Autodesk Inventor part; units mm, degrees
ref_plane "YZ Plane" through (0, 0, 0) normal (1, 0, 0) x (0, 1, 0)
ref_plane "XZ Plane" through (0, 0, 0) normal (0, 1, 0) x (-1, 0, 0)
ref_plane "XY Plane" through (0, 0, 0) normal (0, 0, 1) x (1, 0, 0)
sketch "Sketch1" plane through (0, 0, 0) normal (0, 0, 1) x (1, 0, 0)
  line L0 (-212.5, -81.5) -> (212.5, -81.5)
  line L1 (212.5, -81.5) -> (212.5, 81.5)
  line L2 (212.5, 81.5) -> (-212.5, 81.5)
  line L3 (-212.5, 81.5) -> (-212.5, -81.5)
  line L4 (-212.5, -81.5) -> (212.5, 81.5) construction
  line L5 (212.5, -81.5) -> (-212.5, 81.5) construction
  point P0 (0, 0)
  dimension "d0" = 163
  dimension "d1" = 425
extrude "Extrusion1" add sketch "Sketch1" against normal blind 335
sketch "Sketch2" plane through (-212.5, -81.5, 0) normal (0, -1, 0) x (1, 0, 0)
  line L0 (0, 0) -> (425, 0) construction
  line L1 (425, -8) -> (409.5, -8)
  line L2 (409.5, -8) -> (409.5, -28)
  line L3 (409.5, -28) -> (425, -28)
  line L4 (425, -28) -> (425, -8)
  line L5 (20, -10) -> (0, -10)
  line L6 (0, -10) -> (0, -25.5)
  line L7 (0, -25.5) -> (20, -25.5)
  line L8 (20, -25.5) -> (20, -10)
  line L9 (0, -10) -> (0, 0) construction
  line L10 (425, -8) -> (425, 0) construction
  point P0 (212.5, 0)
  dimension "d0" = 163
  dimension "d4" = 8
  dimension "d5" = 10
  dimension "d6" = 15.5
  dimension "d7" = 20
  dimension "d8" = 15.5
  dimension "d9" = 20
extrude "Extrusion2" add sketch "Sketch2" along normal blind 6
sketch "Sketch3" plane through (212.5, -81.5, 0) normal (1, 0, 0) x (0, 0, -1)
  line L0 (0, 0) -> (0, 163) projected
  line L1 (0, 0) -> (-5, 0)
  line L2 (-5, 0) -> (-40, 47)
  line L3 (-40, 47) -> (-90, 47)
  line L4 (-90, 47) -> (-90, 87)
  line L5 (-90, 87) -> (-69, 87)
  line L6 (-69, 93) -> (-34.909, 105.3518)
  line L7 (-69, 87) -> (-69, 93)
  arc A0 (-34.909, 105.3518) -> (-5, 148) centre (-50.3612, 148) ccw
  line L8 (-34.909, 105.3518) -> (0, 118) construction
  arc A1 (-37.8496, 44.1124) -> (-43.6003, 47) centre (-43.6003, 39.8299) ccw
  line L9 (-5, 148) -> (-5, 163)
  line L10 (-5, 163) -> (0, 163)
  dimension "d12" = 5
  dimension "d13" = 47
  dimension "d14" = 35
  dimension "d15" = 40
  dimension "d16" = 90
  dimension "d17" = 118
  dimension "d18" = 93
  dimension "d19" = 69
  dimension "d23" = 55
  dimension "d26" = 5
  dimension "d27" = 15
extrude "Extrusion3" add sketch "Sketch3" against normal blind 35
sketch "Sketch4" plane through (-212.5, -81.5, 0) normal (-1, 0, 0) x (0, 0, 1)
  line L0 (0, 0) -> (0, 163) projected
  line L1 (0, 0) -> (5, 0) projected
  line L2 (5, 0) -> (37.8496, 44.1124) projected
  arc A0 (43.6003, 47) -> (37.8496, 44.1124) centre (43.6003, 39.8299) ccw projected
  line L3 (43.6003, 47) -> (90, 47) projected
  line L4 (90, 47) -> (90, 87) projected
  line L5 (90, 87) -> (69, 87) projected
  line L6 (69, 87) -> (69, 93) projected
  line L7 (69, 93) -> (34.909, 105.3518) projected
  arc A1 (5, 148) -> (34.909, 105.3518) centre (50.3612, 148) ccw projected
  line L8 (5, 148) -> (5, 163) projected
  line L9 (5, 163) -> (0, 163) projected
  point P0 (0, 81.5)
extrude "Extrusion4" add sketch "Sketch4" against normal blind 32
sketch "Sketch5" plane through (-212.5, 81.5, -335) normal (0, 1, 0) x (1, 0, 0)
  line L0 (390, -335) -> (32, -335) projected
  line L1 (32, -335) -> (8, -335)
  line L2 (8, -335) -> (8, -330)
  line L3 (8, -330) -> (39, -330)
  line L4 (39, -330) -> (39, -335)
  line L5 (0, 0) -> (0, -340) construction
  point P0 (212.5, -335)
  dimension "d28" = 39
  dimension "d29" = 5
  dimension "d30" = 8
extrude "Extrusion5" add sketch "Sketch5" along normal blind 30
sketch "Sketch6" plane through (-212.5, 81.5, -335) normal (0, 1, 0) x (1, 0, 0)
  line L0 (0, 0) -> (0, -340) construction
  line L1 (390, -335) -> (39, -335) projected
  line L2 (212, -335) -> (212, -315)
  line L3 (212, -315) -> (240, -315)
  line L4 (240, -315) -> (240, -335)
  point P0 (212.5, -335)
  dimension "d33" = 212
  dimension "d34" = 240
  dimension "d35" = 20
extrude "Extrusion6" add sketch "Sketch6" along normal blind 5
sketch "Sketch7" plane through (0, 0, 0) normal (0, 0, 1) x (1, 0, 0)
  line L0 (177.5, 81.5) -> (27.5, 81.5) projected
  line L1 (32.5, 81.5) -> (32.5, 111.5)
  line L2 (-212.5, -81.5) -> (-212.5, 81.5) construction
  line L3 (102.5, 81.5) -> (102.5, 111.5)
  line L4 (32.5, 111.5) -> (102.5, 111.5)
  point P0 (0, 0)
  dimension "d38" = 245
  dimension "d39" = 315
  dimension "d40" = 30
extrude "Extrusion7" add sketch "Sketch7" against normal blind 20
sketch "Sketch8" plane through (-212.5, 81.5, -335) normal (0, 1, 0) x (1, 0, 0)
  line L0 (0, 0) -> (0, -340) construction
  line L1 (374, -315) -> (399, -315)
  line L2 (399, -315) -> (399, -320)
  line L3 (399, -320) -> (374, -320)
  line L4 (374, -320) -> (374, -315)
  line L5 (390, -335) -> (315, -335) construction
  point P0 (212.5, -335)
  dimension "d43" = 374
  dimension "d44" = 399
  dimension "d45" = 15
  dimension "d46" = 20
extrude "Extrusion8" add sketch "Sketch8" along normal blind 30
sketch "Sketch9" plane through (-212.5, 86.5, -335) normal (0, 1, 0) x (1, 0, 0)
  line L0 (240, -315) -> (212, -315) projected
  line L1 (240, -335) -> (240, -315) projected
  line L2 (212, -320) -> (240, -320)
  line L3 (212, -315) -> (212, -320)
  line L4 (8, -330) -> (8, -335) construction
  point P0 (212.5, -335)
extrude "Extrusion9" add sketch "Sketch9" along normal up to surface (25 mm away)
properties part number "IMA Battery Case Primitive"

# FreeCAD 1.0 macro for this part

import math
import FreeCAD as App
import Part
import Sketcher
from FreeCAD import Vector

doc = App.newDocument("Part")
body = doc.addObject("PartDesign::Body", "Body")

# Sketch on XY plane
sketch1 = body.newObject("Sketcher::SketchObject", "Sketch")
sketch1.AttachmentSupport = (doc.getObject("XY_Plane"), [""])
sketch1.MapMode = "FlatFace"
sketch1.addGeometry([
    Part.LineSegment(Vector(-212, 82, 0), Vector(-212, -82, 0)),
    Part.LineSegment(Vector(-212, -82, 0), Vector(212, -82, 0)),
    Part.LineSegment(Vector(212, -82, 0), Vector(212, 82, 0)),
    Part.LineSegment(Vector(212, 82, 0), Vector(-212, 82, 0)),
], False)
sketch1.addConstraint([
    Sketcher.Constraint("Coincident", 0, 2, 1, 1),
    Sketcher.Constraint("Coincident", 1, 2, 2, 1),
    Sketcher.Constraint("Coincident", 2, 2, 3, 1),
    Sketcher.Constraint("Coincident", 3, 2, 0, 1),
    Sketcher.Constraint("Vertical", 0),
    Sketcher.Constraint("Horizontal", 1),
    Sketcher.Constraint("Vertical", 2),
    Sketcher.Constraint("Horizontal", 3),
    Sketcher.Constraint("Symmetric", 0, 2, 2, 2, -1, 1),
    Sketcher.Constraint("DistanceX", 1, 1, 1, 2, 425.0),
    Sketcher.Constraint("DistanceY", 0, 2, 0, 1, 163.0),
])
pad1 = body.newObject("PartDesign::Pad", "Pad")
pad1.Profile = sketch1
pad1.Length = 335
pad1.Reversed = True

# Sketch on XZ plane
sketch2 = body.newObject("Sketcher::SketchObject", "Sketch001")
sketch2.AttachmentSupport = (doc.getObject("XZ_Plane"), [""])
sketch2.MapMode = "FlatFace"
sketch2.AttachmentOffset = App.Placement(Vector(0, 0, 81.5), App.Rotation())
sketch2.addGeometry([
    Part.LineSegment(Vector(212, -28, 0), Vector(212, -8, 0)),  # 0
    Part.LineSegment(Vector(212, -8, 0), Vector(197, -8, 0)),  # 1
    Part.LineSegment(Vector(197, -8, 0), Vector(197, -28, 0)),  # 2
    Part.LineSegment(Vector(197, -28, 0), Vector(212, -28, 0)),  # 3
    Part.LineSegment(Vector(-192, -26, 0), Vector(-192, -10, 0)),  # 4
    Part.LineSegment(Vector(-192, -10, 0), Vector(-212, -10, 0)),  # 5
    Part.LineSegment(Vector(-212, -10, 0), Vector(-212, -26, 0)),  # 6
    Part.LineSegment(Vector(-212, -26, 0), Vector(-192, -26, 0)),  # 7
], False)
sketch2.addConstraint([
    Sketcher.Constraint("Coincident", 0, 2, 1, 1),
    Sketcher.Constraint("Coincident", 1, 2, 2, 1),
    Sketcher.Constraint("Coincident", 2, 2, 3, 1),
    Sketcher.Constraint("Coincident", 3, 2, 0, 1),
    Sketcher.Constraint("Coincident", 4, 2, 5, 1),
    Sketcher.Constraint("Coincident", 5, 2, 6, 1),
    Sketcher.Constraint("Coincident", 6, 2, 7, 1),
    Sketcher.Constraint("Coincident", 7, 2, 4, 1),
    Sketcher.Constraint("Vertical", 0),
    Sketcher.Constraint("Horizontal", 1),
    Sketcher.Constraint("Vertical", 2),
    Sketcher.Constraint("Horizontal", 3),
    Sketcher.Constraint("Vertical", 4),
    Sketcher.Constraint("Horizontal", 5),
    Sketcher.Constraint("Vertical", 6),
    Sketcher.Constraint("Horizontal", 7),
    Sketcher.Constraint("Equal", 7, 0),
    Sketcher.Constraint("Equal", 3, 4),
    Sketcher.Constraint("DistanceX", 5, 2, 5, 1, 20.0),
    Sketcher.Constraint("DistanceX", 1, 2, 1, 1, 15.5),
    Sketcher.Constraint("DistanceY", 0, 2, -1, 1, 8.0),
    Sketcher.Constraint("DistanceY", 4, 2, -1, 1, 10.0),
    Sketcher.Constraint("DistanceX", -1, 1, 1, 2, 197.0),
    Sketcher.Constraint("DistanceX", 4, 2, 0, 2, 405.0),
])
pad2 = body.newObject("PartDesign::Pad", "Pad001")
pad2.Profile = sketch2
pad2.Length = 6

# Sketch on YZ plane
sketch3 = body.newObject("Sketcher::SketchObject", "Sketch002")
sketch3.AttachmentSupport = (doc.getObject("YZ_Plane"), [""])
sketch3.MapMode = "FlatFace"
sketch3.AttachmentOffset = App.Placement(Vector(0, 0, 212.5), App.Rotation())
sketch3.addGeometry([
    Part.LineSegment(Vector(-82, 5, 0), Vector(-82, 0, 0)),  # 0
    Part.LineSegment(Vector(-82, 0, 0), Vector(82, 0, 0)),  # 1
    Part.LineSegment(Vector(82, 0, 0), Vector(82, 5, 0)),  # 2
    Part.LineSegment(Vector(82, 5, 0), Vector(66, 5, 0)),  # 3
    Part.ArcOfCircle(Part.Circle(Vector(66, 50, 0), Vector(0, 0, 1), 45), math.radians(-160), math.radians(-90)),  # 4
    Part.LineSegment(Vector(24, 35, 0), Vector(12, 69, 0)),  # 5
    Part.LineSegment(Vector(12, 69, 0), Vector(6, 69, 0)),  # 6
    Part.LineSegment(Vector(6, 69, 0), Vector(6, 90, 0)),  # 7
    Part.LineSegment(Vector(6, 90, 0), Vector(-34, 90, 0)),  # 8
    Part.LineSegment(Vector(-34, 90, 0), Vector(-34, 44, 0)),  # 9
    Part.ArcOfCircle(Part.Circle(Vector(-42, 44, 0), Vector(0, 0, 1), 7), math.radians(-53), math.radians(0)),  # 10
    Part.LineSegment(Vector(-37, 38, 0), Vector(-82, 5, 0)),  # 11
], False)
sketch3.addConstraint([
    Sketcher.Constraint("Coincident", 0, 2, 1, 1),
    Sketcher.Constraint("Coincident", 1, 2, 2, 1),
    Sketcher.Constraint("Coincident", 2, 2, 3, 1),
    Sketcher.Constraint("Tangent", 3, 2, 4, 2),
    Sketcher.Constraint("Tangent", 4, 1, 5, 1),
    Sketcher.Constraint("Coincident", 5, 2, 6, 1),
    Sketcher.Constraint("Coincident", 6, 2, 7, 1),
    Sketcher.Constraint("Coincident", 7, 2, 8, 1),
    Sketcher.Constraint("Coincident", 8, 2, 9, 1),
    Sketcher.Constraint("Tangent", 9, 2, 10, 2),
    Sketcher.Constraint("Tangent", 10, 1, 11, 1),
    Sketcher.Constraint("Coincident", 11, 2, 0, 1),
    Sketcher.Constraint("Vertical", 0),
    Sketcher.Constraint("Horizontal", 1),
    Sketcher.Constraint("Vertical", 2),
    Sketcher.Constraint("Horizontal", 3),
    Sketcher.Constraint("Horizontal", 6),
    Sketcher.Constraint("Vertical", 7),
    Sketcher.Constraint("Horizontal", 8),
    Sketcher.Constraint("Vertical", 9),
    Sketcher.Constraint("Symmetric", 0, 2, 1, 2, -1, 1),
    Sketcher.Constraint("Horizontal", 3, 2, 11, 2),
    Sketcher.Constraint("DistanceX", 3, 2, 3, 1, 15.0),
    Sketcher.Constraint("DistanceX", 8, 2, 8, 1, 40.0),
    Sketcher.Constraint("DistanceY", 0, 2, 0, 1, 5.0),
    Sketcher.Constraint("Distance", 11, 55.0),
    Sketcher.Constraint("DistanceY", -1, 1, 5, 2, 69.0),
    Sketcher.Constraint("DistanceY", -1, 1, 7, 2, 90.0),
    Sketcher.Constraint("DistanceX", 5, 2, 4, 3, 55.0),
    Sketcher.Constraint("DistanceX", 11, 2, 9, 2, 47.0),
    Sketcher.Constraint("DistanceX", 1, 1, 1, 2, 163.0),
    Sketcher.Constraint("Radius", 10, 7.17),
    Sketcher.Constraint("Radius", 4, 45.3612),
])
pad3 = body.newObject("PartDesign::Pad", "Pad002")
pad3.Profile = sketch3
pad3.Length = 35
pad3.Reversed = True

# Sketch on YZ plane
sketch4 = body.newObject("Sketcher::SketchObject", "Sketch003")
sketch4.AttachmentSupport = (doc.getObject("YZ_Plane"), [""])
sketch4.MapMode = "FlatFace"
sketch4.AttachmentOffset = App.Placement(Vector(0, 0, -212.5), App.Rotation())
sketch4.addGeometry([
    Part.LineSegment(Vector(82, 0, 0), Vector(-82, 0, 0)),  # 0
    Part.LineSegment(Vector(-82, 0, 0), Vector(-82, 5, 0)),  # 1
    Part.LineSegment(Vector(-82, 5, 0), Vector(-37, 38, 0)),  # 2
    Part.ArcOfCircle(Part.Circle(Vector(-42, 44, 0), Vector(0, 0, 1), 7), math.radians(-53), math.radians(0)),  # 3
    Part.LineSegment(Vector(-34, 44, 0), Vector(-34, 90, 0)),  # 4
    Part.LineSegment(Vector(-34, 90, 0), Vector(6, 90, 0)),  # 5
    Part.LineSegment(Vector(6, 90, 0), Vector(6, 69, 0)),  # 6
    Part.LineSegment(Vector(6, 69, 0), Vector(12, 69, 0)),  # 7
    Part.LineSegment(Vector(12, 69, 0), Vector(24, 35, 0)),  # 8
    Part.ArcOfCircle(Part.Circle(Vector(66, 50, 0), Vector(0, 0, 1), 45), math.radians(-160), math.radians(-90)),  # 9
    Part.LineSegment(Vector(66, 5, 0), Vector(82, 5, 0)),  # 10
    Part.LineSegment(Vector(82, 5, 0), Vector(82, 0, 0)),  # 11
], False)
sketch4.addConstraint([
    Sketcher.Constraint("Coincident", 0, 2, 1, 1),
    Sketcher.Constraint("Coincident", 1, 2, 2, 1),
    Sketcher.Constraint("Tangent", 2, 2, 3, 1),
    Sketcher.Constraint("Tangent", 3, 2, 4, 1),
    Sketcher.Constraint("Coincident", 4, 2, 5, 1),
    Sketcher.Constraint("Coincident", 5, 2, 6, 1),
    Sketcher.Constraint("Coincident", 6, 2, 7, 1),
    Sketcher.Constraint("Coincident", 7, 2, 8, 1),
    Sketcher.Constraint("Tangent", 8, 2, 9, 1),
    Sketcher.Constraint("Tangent", 9, 2, 10, 1),
    Sketcher.Constraint("Coincident", 10, 2, 11, 1),
    Sketcher.Constraint("Coincident", 11, 2, 0, 1),
    Sketcher.Constraint("Horizontal", 0),
    Sketcher.Constraint("Vertical", 1),
    Sketcher.Constraint("Vertical", 4),
    Sketcher.Constraint("Horizontal", 5),
    Sketcher.Constraint("Vertical", 6),
    Sketcher.Constraint("Horizontal", 7),
    Sketcher.Constraint("Horizontal", 10),
    Sketcher.Constraint("Vertical", 11),
    Sketcher.Constraint("Symmetric", 0, 2, 11, 2, -1, 1),
    Sketcher.Constraint("Horizontal", 1, 2, 9, 2),
    Sketcher.Constraint("DistanceX", 0, 2, 0, 1, 163.0),
    Sketcher.Constraint("DistanceX", 5, 1, 5, 2, 40.0),
    Sketcher.Constraint("DistanceX", 7, 1, 7, 2, 6.0),
    Sketcher.Constraint("DistanceX", 10, 1, 10, 2, 15.0),
    Sketcher.Constraint("DistanceY", 1, 1, 1, 2, 5.0),
    Sketcher.Constraint("DistanceY", 6, 2, 6, 1, 21.0),
    Sketcher.Constraint("Radius", 3, 7.17),
    Sketcher.Constraint("Distance", 2, 55.0),
    Sketcher.Constraint("DistanceY", -1, 1, 4, 2, 90.0),
    Sketcher.Constraint("DistanceX", 1, 2, 3, 2, 47.0),
    Sketcher.Constraint("Radius", 9, 45.3612),
])
pad4 = body.newObject("PartDesign::Pad", "Pad003")
pad4.Profile = sketch4
pad4.Length = 32

# Sketch on XZ plane
sketch5 = body.newObject("Sketcher::SketchObject", "Sketch004")
sketch5.AttachmentSupport = (doc.getObject("XZ_Plane"), [""])
sketch5.MapMode = "FlatFace"
sketch5.AttachmentOffset = App.Placement(Vector(0, 0, -81.5), App.Rotation())
sketch5.addGeometry([
    Part.LineSegment(Vector(-204, 0, 0), Vector(-174, 0, 0)),
    Part.LineSegment(Vector(-174, 0, 0), Vector(-174, -5, 0)),
    Part.LineSegment(Vector(-174, -5, 0), Vector(-204, -5, 0)),
    Part.LineSegment(Vector(-204, -5, 0), Vector(-204, 0, 0)),
], False)
sketch5.addConstraint([
    Sketcher.Constraint("Coincident", 0, 2, 1, 1),
    Sketcher.Constraint("Coincident", 1, 2, 2, 1),
    Sketcher.Constraint("Coincident", 2, 2, 3, 1),
    Sketcher.Constraint("Coincident", 3, 2, 0, 1),
    Sketcher.Constraint("Horizontal", 0),
    Sketcher.Constraint("Vertical", 1),
    Sketcher.Constraint("Horizontal", 2),
    Sketcher.Constraint("Vertical", 3),
    Sketcher.Constraint("PointOnObject", 0, 2, -1),
    Sketcher.Constraint("DistanceY", 1, 2, 1, 1, 5.0),
    Sketcher.Constraint("DistanceX", 0, 1, 0, 2, 31.0),
    Sketcher.Constraint("DistanceX", 0, 2, -1, 1, 173.5),
])
pad5 = body.newObject("PartDesign::Pad", "Pad004")
pad5.Profile = sketch5
pad5.Length = 30
pad5.Reversed = True

# Sketch on XZ plane
sketch6 = body.newObject("Sketcher::SketchObject", "Sketch005")
sketch6.AttachmentSupport = (doc.getObject("XZ_Plane"), [""])
sketch6.MapMode = "FlatFace"
sketch6.AttachmentOffset = App.Placement(Vector(0, 0, -81.5), App.Rotation())
sketch6.addGeometry([
    Part.LineSegment(Vector(0, 0, 0), Vector(28, 0, 0)),
    Part.LineSegment(Vector(28, 0, 0), Vector(28, -20, 0)),
    Part.LineSegment(Vector(28, -20, 0), Vector(0, -20, 0)),
    Part.LineSegment(Vector(0, -20, 0), Vector(0, 0, 0)),
], False)
sketch6.addConstraint([
    Sketcher.Constraint("Coincident", 0, 2, 1, 1),
    Sketcher.Constraint("Coincident", 1, 2, 2, 1),
    Sketcher.Constraint("Coincident", 2, 2, 3, 1),
    Sketcher.Constraint("Coincident", 3, 2, 0, 1),
    Sketcher.Constraint("Horizontal", 0),
    Sketcher.Constraint("Vertical", 1),
    Sketcher.Constraint("Horizontal", 2),
    Sketcher.Constraint("Vertical", 3),
    Sketcher.Constraint("PointOnObject", 0, 2, -1),
    Sketcher.Constraint("DistanceY", 1, 2, 1, 1, 20.0),
    Sketcher.Constraint("DistanceX", 0, 1, 0, 2, 28.0),
    Sketcher.Constraint("DistanceX", -1, 1, 0, 2, 27.5),
])
pad6 = body.newObject("PartDesign::Pad", "Pad005")
pad6.Profile = sketch6
pad6.Length = 5
pad6.Reversed = True

# Sketch on XY plane
sketch7 = body.newObject("Sketcher::SketchObject", "Sketch006")
sketch7.AttachmentSupport = (doc.getObject("XY_Plane"), [""])
sketch7.MapMode = "FlatFace"
sketch7.addGeometry([
    Part.LineSegment(Vector(32, 82, 0), Vector(102, 82, 0)),
    Part.LineSegment(Vector(102, 82, 0), Vector(102, 112, 0)),
    Part.LineSegment(Vector(102, 112, 0), Vector(32, 112, 0)),
    Part.LineSegment(Vector(32, 112, 0), Vector(32, 82, 0)),
], False)
sketch7.addConstraint([
    Sketcher.Constraint("Coincident", 0, 2, 1, 1),
    Sketcher.Constraint("Coincident", 1, 2, 2, 1),
    Sketcher.Constraint("Coincident", 2, 2, 3, 1),
    Sketcher.Constraint("Coincident", 3, 2, 0, 1),
    Sketcher.Constraint("Horizontal", 0),
    Sketcher.Constraint("Vertical", 1),
    Sketcher.Constraint("Horizontal", 2),
    Sketcher.Constraint("Vertical", 3),
    Sketcher.Constraint("DistanceY", 1, 1, 1, 2, 30.0),
    Sketcher.Constraint("DistanceX", 0, 1, 0, 2, 70.0),
    Sketcher.Constraint("DistanceX", -1, 1, 0, 2, 102.5),
    Sketcher.Constraint("DistanceY", -1, 1, 0, 2, 81.5),
])
pad7 = body.newObject("PartDesign::Pad", "Pad006")
pad7.Profile = sketch7
pad7.Length = 20
pad7.Reversed = True

# Sketch on XZ plane
sketch8 = body.newObject("Sketcher::SketchObject", "Sketch007")
sketch8.AttachmentSupport = (doc.getObject("XZ_Plane"), [""])
sketch8.MapMode = "FlatFace"
sketch8.AttachmentOffset = App.Placement(Vector(0, 0, -81.5), App.Rotation())
sketch8.addGeometry([
    Part.LineSegment(Vector(186, -20, 0), Vector(162, -20, 0)),
    Part.LineSegment(Vector(162, -20, 0), Vector(162, -15, 0)),
    Part.LineSegment(Vector(162, -15, 0), Vector(186, -15, 0)),
    Part.LineSegment(Vector(186, -15, 0), Vector(186, -20, 0)),
], False)
sketch8.addConstraint([
    Sketcher.Constraint("Coincident", 0, 2, 1, 1),
    Sketcher.Constraint("Coincident", 1, 2, 2, 1),
    Sketcher.Constraint("Coincident", 2, 2, 3, 1),
    Sketcher.Constraint("Coincident", 3, 2, 0, 1),
    Sketcher.Constraint("Horizontal", 0),
    Sketcher.Constraint("Vertical", 1),
    Sketcher.Constraint("Horizontal", 2),
    Sketcher.Constraint("Vertical", 3),
    Sketcher.Constraint("DistanceY", 0, 2, -1, 1, 20.0),
    Sketcher.Constraint("DistanceY", 1, 2, -1, 1, 15.0),
    Sketcher.Constraint("DistanceX", 0, 2, 0, 1, 25.0),
    Sketcher.Constraint("DistanceX", -1, 1, 0, 2, 161.5),
])
pad8 = body.newObject("PartDesign::Pad", "Pad007")
pad8.Profile = sketch8
pad8.Length = 30
pad8.Reversed = True

# Sketch on XZ plane
sketch9 = body.newObject("Sketcher::SketchObject", "Sketch008")
sketch9.AttachmentSupport = (doc.getObject("XZ_Plane"), [""])
sketch9.MapMode = "FlatFace"
sketch9.AttachmentOffset = App.Placement(Vector(0, 0, -86.5), App.Rotation())
sketch9.addGeometry([
    Part.LineSegment(Vector(28, -15, 0), Vector(28, -20, 0)),
    Part.LineSegment(Vector(28, -20, 0), Vector(0, -20, 0)),
    Part.LineSegment(Vector(0, -20, 0), Vector(0, -15, 0)),
    Part.LineSegment(Vector(0, -15, 0), Vector(28, -15, 0)),
], False)
sketch9.addConstraint([
    Sketcher.Constraint("Coincident", 0, 2, 1, 1),
    Sketcher.Constraint("Coincident", 1, 2, 2, 1),
    Sketcher.Constraint("Coincident", 2, 2, 3, 1),
    Sketcher.Constraint("Coincident", 3, 2, 0, 1),
    Sketcher.Constraint("Vertical", 0),
    Sketcher.Constraint("Horizontal", 1),
    Sketcher.Constraint("Vertical", 2),
    Sketcher.Constraint("Horizontal", 3),
    Sketcher.Constraint("DistanceX", 1, 2, 1, 1, 28.0),
    Sketcher.Constraint("DistanceY", 0, 2, 0, 1, 5.0),
    Sketcher.Constraint("DistanceY", 0, 2, -1, 1, 20.0),
    Sketcher.Constraint("DistanceX", -1, 1, 0, 2, 27.5),
])
pad9 = body.newObject("PartDesign::Pad", "Pad008")
pad9.Profile = sketch9
pad9.Length = 25
pad9.Reversed = True

doc.recompute()
